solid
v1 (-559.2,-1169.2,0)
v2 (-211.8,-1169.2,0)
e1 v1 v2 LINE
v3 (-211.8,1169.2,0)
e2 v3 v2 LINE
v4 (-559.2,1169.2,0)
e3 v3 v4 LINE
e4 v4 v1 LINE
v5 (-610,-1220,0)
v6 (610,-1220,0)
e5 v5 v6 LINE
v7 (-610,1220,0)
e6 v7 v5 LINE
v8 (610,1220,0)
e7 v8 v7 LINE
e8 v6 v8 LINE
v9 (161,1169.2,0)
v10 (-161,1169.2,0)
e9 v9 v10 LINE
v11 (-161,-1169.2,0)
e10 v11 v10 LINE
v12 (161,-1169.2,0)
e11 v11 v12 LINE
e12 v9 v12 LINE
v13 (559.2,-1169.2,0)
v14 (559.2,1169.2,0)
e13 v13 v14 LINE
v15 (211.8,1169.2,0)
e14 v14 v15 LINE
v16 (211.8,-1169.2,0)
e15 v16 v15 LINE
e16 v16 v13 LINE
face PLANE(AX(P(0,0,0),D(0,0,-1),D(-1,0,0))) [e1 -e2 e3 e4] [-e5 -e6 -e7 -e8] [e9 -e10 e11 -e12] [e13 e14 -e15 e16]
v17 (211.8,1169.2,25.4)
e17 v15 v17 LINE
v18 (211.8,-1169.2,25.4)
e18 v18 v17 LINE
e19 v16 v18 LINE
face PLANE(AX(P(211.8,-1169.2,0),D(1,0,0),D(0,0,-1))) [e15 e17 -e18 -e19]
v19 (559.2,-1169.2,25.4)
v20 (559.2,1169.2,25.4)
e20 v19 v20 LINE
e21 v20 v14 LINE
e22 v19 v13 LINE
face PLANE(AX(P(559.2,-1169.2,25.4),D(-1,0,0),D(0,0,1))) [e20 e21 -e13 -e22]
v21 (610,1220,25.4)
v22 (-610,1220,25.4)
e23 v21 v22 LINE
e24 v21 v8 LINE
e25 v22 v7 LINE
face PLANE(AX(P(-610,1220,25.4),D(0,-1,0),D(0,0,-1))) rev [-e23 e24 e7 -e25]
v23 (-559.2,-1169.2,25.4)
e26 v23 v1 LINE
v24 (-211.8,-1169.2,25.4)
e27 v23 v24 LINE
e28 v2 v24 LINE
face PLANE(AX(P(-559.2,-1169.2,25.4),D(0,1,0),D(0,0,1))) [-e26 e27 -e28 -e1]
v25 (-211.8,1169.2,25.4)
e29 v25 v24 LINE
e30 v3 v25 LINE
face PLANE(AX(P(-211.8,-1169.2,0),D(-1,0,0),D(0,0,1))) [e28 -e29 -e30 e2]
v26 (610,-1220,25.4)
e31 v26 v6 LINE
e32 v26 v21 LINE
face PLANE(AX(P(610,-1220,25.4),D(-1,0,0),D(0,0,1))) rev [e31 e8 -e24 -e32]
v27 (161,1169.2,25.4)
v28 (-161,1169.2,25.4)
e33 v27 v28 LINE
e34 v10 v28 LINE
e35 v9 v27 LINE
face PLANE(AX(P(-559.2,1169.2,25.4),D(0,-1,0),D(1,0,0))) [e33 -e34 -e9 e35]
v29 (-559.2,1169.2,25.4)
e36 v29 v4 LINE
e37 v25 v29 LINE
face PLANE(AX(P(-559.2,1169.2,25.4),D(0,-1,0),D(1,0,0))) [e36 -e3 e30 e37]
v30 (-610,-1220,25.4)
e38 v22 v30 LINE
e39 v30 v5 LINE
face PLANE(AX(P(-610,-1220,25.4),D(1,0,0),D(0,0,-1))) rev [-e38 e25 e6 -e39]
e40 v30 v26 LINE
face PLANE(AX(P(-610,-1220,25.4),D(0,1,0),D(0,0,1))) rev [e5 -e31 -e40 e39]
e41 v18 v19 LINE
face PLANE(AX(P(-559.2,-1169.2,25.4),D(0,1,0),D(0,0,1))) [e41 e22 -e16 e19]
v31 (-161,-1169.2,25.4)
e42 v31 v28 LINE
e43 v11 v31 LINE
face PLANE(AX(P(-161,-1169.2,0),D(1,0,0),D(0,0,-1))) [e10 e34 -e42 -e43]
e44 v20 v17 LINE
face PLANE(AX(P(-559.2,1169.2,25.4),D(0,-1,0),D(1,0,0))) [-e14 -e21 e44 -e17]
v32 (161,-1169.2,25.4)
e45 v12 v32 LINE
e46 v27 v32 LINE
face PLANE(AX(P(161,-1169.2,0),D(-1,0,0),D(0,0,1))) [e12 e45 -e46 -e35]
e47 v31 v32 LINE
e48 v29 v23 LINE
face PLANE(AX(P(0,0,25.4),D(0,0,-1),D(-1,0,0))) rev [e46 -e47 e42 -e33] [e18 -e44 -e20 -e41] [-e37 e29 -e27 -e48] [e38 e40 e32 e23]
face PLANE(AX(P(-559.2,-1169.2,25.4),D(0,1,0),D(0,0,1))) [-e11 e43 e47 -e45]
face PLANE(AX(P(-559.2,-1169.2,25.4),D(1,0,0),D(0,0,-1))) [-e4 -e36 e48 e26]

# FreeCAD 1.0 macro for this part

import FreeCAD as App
import Part
import Sketcher
from FreeCAD import Vector
Q = App.Units.Quantity


def add_polygon(sketch, points):
    """Adds a closed chain of lines whose ends are joined by coincident constraints."""
    first, n = sketch.GeometryCount, len(points)
    for a, b in zip(points, points[1:] + points[:1]):
        sketch.addGeometry(Part.LineSegment(App.Vector(*a, 0), App.Vector(*b, 0)), False)
    for i in range(n):
        sketch.addConstraint(Sketcher.Constraint("Coincident", first + i, 2, first + (i + 1) % n, 1))

doc = App.newDocument("Part")
params = doc.addObject("Spreadsheet::Sheet", "Params")
for row, (alias, value) in enumerate([
    ("sketch1_width", "1220 mm"),
    ("sketch1_height", "2440 mm"),
    ("sketch1_width2", "1118.4 mm"),
    ("sketch1_height2", "2338.4 mm"),
    ("pad1_length", "25.4 mm"),
    ("sketch2_width", "50.8 mm"),
    ("sketch2_height", "2338.4 mm"),
    ("pad2_length", "25.4 mm"),
], start=1):
    params.set(f"A{row}", alias)
    params.set(f"B{row}", "=" + value)
    params.setAlias(f"B{row}", alias)

body = doc.addObject("PartDesign::Body", "Body")

sketch1 = body.newObject("Sketcher::SketchObject", "Sketch")
sketch1.AttachmentSupport = (doc.getObject("XY_Plane"), [""])
sketch1.MapMode = "FlatFace"
add_polygon(sketch1, [(-610, 1220), (-610, -1220), (610, -1220), (610, 1220)])
add_polygon(sketch1, [(559, -1169), (-559, -1169), (-559, 1169), (559, 1169)])
sketch1.addConstraint([
    Sketcher.Constraint("Vertical", 0),
    Sketcher.Constraint("Horizontal", 1),
    Sketcher.Constraint("Vertical", 2),
    Sketcher.Constraint("Horizontal", 3),
    Sketcher.Constraint("Horizontal", 4),
    Sketcher.Constraint("Vertical", 5),
    Sketcher.Constraint("Horizontal", 6),
    Sketcher.Constraint("Vertical", 7),
    Sketcher.Constraint("Symmetric", 0, 2, 2, 2, -1, 1),
    Sketcher.Constraint("Symmetric", 4, 2, 6, 2, -1, 1),
    Sketcher.Constraint("DistanceX", 1, 1, 1, 2, Q("1220 mm")),
    Sketcher.Constraint("DistanceY", 0, 2, 0, 1, Q("2440 mm")),
    Sketcher.Constraint("DistanceX", 4, 2, 4, 1, Q("1118.4 mm")),
    Sketcher.Constraint("DistanceY", 5, 1, 5, 2, Q("2338.4 mm")),
])
sketch1.setExpression("Constraints[18]", "Params.sketch1_width")
sketch1.setExpression("Constraints[19]", "Params.sketch1_height")
sketch1.setExpression("Constraints[20]", "Params.sketch1_width2")
sketch1.setExpression("Constraints[21]", "Params.sketch1_height2")
pad1 = body.newObject("PartDesign::Pad", "Pad")
pad1.Profile = sketch1
pad1.setExpression("Length", "Params.pad1_length")

sketch2 = body.newObject("Sketcher::SketchObject", "Sketch001")
sketch2.AttachmentSupport = (doc.getObject("XY_Plane"), [""])
sketch2.MapMode = "FlatFace"
sketch2.AttachmentOffset = App.Placement(Vector(0, 0, 25.4), App.Rotation())
add_polygon(sketch2, [(-212, 1169), (-212, -1169), (-161, -1169), (-161, 1169)])
add_polygon(sketch2, [(161, 1169), (161, -1169), (212, -1169), (212, 1169)])
sketch2.addConstraint([
    Sketcher.Constraint("Vertical", 0),
    Sketcher.Constraint("Horizontal", 1),
    Sketcher.Constraint("Vertical", 2),
    Sketcher.Constraint("Horizontal", 3),
    Sketcher.Constraint("Vertical", 4),
    Sketcher.Constraint("Horizontal", 5),
    Sketcher.Constraint("Vertical", 6),
    Sketcher.Constraint("Horizontal", 7),
    Sketcher.Constraint("Symmetric", 2, 2, 4, 2, -1, 1),
    Sketcher.Constraint("Symmetric", 0, 2, 6, 2, -1, 1),
    Sketcher.Constraint("Horizontal", 1, 2, 4, 2),
    Sketcher.Constraint("DistanceX", 1, 1, 1, 2, Q("50.8 mm")),
    Sketcher.Constraint("DistanceY", 0, 2, 0, 1, Q("2338.4 mm")),
    Sketcher.Constraint("DistanceX", 1, 2, -1, 1, Q("161 mm")),
])
sketch2.setExpression("Constraints[19]", "Params.sketch2_width")
sketch2.setExpression("Constraints[20]", "Params.sketch2_height")
pad2 = body.newObject("PartDesign::Pad", "Pad001")
pad2.Profile = sketch2
pad2.setExpression("Length", "Params.pad2_length")
pad2.Reversed = True

doc.recompute()
